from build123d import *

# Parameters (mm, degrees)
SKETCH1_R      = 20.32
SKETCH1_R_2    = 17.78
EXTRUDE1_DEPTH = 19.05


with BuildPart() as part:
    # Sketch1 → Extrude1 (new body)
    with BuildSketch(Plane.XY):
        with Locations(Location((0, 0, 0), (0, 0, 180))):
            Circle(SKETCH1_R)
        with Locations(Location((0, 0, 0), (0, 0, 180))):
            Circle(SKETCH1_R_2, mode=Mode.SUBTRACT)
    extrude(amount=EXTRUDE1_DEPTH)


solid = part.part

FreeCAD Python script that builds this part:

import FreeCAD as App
import Part
import Sketcher

V = App.Vector
Q = App.Units.Quantity

doc = App.newDocument("Part")
body = doc.addObject("PartDesign::Body", "Body")

# Sketch on XY plane
sketch1 = body.newObject("Sketcher::SketchObject", "Sketch")
sketch1.AttachmentSupport = (doc.getObject("XY_Plane"), [""])
sketch1.MapMode = "FlatFace"
sketch1.addGeometry(Part.Circle(V(0, 0, 0), V(0, 0, 1), 20), False)
sketch1.addGeometry(Part.Circle(V(0, 0, 0), V(0, 0, 1), 18), False)
sketch1.addConstraint(Sketcher.Constraint("Coincident", 0, 3, -1, 1))
sketch1.addConstraint(Sketcher.Constraint("Coincident", 1, 3, -1, 1))
sketch1.addConstraint(Sketcher.Constraint("Diameter", 0, Q("1.6 in")))
sketch1.addConstraint(Sketcher.Constraint("Diameter", 1, Q("1.4 in")))
pad1 = body.newObject("PartDesign::Pad", "Pad")
pad1.Profile = sketch1
pad1.Length = Q("0.75 in")

doc.recompute()
